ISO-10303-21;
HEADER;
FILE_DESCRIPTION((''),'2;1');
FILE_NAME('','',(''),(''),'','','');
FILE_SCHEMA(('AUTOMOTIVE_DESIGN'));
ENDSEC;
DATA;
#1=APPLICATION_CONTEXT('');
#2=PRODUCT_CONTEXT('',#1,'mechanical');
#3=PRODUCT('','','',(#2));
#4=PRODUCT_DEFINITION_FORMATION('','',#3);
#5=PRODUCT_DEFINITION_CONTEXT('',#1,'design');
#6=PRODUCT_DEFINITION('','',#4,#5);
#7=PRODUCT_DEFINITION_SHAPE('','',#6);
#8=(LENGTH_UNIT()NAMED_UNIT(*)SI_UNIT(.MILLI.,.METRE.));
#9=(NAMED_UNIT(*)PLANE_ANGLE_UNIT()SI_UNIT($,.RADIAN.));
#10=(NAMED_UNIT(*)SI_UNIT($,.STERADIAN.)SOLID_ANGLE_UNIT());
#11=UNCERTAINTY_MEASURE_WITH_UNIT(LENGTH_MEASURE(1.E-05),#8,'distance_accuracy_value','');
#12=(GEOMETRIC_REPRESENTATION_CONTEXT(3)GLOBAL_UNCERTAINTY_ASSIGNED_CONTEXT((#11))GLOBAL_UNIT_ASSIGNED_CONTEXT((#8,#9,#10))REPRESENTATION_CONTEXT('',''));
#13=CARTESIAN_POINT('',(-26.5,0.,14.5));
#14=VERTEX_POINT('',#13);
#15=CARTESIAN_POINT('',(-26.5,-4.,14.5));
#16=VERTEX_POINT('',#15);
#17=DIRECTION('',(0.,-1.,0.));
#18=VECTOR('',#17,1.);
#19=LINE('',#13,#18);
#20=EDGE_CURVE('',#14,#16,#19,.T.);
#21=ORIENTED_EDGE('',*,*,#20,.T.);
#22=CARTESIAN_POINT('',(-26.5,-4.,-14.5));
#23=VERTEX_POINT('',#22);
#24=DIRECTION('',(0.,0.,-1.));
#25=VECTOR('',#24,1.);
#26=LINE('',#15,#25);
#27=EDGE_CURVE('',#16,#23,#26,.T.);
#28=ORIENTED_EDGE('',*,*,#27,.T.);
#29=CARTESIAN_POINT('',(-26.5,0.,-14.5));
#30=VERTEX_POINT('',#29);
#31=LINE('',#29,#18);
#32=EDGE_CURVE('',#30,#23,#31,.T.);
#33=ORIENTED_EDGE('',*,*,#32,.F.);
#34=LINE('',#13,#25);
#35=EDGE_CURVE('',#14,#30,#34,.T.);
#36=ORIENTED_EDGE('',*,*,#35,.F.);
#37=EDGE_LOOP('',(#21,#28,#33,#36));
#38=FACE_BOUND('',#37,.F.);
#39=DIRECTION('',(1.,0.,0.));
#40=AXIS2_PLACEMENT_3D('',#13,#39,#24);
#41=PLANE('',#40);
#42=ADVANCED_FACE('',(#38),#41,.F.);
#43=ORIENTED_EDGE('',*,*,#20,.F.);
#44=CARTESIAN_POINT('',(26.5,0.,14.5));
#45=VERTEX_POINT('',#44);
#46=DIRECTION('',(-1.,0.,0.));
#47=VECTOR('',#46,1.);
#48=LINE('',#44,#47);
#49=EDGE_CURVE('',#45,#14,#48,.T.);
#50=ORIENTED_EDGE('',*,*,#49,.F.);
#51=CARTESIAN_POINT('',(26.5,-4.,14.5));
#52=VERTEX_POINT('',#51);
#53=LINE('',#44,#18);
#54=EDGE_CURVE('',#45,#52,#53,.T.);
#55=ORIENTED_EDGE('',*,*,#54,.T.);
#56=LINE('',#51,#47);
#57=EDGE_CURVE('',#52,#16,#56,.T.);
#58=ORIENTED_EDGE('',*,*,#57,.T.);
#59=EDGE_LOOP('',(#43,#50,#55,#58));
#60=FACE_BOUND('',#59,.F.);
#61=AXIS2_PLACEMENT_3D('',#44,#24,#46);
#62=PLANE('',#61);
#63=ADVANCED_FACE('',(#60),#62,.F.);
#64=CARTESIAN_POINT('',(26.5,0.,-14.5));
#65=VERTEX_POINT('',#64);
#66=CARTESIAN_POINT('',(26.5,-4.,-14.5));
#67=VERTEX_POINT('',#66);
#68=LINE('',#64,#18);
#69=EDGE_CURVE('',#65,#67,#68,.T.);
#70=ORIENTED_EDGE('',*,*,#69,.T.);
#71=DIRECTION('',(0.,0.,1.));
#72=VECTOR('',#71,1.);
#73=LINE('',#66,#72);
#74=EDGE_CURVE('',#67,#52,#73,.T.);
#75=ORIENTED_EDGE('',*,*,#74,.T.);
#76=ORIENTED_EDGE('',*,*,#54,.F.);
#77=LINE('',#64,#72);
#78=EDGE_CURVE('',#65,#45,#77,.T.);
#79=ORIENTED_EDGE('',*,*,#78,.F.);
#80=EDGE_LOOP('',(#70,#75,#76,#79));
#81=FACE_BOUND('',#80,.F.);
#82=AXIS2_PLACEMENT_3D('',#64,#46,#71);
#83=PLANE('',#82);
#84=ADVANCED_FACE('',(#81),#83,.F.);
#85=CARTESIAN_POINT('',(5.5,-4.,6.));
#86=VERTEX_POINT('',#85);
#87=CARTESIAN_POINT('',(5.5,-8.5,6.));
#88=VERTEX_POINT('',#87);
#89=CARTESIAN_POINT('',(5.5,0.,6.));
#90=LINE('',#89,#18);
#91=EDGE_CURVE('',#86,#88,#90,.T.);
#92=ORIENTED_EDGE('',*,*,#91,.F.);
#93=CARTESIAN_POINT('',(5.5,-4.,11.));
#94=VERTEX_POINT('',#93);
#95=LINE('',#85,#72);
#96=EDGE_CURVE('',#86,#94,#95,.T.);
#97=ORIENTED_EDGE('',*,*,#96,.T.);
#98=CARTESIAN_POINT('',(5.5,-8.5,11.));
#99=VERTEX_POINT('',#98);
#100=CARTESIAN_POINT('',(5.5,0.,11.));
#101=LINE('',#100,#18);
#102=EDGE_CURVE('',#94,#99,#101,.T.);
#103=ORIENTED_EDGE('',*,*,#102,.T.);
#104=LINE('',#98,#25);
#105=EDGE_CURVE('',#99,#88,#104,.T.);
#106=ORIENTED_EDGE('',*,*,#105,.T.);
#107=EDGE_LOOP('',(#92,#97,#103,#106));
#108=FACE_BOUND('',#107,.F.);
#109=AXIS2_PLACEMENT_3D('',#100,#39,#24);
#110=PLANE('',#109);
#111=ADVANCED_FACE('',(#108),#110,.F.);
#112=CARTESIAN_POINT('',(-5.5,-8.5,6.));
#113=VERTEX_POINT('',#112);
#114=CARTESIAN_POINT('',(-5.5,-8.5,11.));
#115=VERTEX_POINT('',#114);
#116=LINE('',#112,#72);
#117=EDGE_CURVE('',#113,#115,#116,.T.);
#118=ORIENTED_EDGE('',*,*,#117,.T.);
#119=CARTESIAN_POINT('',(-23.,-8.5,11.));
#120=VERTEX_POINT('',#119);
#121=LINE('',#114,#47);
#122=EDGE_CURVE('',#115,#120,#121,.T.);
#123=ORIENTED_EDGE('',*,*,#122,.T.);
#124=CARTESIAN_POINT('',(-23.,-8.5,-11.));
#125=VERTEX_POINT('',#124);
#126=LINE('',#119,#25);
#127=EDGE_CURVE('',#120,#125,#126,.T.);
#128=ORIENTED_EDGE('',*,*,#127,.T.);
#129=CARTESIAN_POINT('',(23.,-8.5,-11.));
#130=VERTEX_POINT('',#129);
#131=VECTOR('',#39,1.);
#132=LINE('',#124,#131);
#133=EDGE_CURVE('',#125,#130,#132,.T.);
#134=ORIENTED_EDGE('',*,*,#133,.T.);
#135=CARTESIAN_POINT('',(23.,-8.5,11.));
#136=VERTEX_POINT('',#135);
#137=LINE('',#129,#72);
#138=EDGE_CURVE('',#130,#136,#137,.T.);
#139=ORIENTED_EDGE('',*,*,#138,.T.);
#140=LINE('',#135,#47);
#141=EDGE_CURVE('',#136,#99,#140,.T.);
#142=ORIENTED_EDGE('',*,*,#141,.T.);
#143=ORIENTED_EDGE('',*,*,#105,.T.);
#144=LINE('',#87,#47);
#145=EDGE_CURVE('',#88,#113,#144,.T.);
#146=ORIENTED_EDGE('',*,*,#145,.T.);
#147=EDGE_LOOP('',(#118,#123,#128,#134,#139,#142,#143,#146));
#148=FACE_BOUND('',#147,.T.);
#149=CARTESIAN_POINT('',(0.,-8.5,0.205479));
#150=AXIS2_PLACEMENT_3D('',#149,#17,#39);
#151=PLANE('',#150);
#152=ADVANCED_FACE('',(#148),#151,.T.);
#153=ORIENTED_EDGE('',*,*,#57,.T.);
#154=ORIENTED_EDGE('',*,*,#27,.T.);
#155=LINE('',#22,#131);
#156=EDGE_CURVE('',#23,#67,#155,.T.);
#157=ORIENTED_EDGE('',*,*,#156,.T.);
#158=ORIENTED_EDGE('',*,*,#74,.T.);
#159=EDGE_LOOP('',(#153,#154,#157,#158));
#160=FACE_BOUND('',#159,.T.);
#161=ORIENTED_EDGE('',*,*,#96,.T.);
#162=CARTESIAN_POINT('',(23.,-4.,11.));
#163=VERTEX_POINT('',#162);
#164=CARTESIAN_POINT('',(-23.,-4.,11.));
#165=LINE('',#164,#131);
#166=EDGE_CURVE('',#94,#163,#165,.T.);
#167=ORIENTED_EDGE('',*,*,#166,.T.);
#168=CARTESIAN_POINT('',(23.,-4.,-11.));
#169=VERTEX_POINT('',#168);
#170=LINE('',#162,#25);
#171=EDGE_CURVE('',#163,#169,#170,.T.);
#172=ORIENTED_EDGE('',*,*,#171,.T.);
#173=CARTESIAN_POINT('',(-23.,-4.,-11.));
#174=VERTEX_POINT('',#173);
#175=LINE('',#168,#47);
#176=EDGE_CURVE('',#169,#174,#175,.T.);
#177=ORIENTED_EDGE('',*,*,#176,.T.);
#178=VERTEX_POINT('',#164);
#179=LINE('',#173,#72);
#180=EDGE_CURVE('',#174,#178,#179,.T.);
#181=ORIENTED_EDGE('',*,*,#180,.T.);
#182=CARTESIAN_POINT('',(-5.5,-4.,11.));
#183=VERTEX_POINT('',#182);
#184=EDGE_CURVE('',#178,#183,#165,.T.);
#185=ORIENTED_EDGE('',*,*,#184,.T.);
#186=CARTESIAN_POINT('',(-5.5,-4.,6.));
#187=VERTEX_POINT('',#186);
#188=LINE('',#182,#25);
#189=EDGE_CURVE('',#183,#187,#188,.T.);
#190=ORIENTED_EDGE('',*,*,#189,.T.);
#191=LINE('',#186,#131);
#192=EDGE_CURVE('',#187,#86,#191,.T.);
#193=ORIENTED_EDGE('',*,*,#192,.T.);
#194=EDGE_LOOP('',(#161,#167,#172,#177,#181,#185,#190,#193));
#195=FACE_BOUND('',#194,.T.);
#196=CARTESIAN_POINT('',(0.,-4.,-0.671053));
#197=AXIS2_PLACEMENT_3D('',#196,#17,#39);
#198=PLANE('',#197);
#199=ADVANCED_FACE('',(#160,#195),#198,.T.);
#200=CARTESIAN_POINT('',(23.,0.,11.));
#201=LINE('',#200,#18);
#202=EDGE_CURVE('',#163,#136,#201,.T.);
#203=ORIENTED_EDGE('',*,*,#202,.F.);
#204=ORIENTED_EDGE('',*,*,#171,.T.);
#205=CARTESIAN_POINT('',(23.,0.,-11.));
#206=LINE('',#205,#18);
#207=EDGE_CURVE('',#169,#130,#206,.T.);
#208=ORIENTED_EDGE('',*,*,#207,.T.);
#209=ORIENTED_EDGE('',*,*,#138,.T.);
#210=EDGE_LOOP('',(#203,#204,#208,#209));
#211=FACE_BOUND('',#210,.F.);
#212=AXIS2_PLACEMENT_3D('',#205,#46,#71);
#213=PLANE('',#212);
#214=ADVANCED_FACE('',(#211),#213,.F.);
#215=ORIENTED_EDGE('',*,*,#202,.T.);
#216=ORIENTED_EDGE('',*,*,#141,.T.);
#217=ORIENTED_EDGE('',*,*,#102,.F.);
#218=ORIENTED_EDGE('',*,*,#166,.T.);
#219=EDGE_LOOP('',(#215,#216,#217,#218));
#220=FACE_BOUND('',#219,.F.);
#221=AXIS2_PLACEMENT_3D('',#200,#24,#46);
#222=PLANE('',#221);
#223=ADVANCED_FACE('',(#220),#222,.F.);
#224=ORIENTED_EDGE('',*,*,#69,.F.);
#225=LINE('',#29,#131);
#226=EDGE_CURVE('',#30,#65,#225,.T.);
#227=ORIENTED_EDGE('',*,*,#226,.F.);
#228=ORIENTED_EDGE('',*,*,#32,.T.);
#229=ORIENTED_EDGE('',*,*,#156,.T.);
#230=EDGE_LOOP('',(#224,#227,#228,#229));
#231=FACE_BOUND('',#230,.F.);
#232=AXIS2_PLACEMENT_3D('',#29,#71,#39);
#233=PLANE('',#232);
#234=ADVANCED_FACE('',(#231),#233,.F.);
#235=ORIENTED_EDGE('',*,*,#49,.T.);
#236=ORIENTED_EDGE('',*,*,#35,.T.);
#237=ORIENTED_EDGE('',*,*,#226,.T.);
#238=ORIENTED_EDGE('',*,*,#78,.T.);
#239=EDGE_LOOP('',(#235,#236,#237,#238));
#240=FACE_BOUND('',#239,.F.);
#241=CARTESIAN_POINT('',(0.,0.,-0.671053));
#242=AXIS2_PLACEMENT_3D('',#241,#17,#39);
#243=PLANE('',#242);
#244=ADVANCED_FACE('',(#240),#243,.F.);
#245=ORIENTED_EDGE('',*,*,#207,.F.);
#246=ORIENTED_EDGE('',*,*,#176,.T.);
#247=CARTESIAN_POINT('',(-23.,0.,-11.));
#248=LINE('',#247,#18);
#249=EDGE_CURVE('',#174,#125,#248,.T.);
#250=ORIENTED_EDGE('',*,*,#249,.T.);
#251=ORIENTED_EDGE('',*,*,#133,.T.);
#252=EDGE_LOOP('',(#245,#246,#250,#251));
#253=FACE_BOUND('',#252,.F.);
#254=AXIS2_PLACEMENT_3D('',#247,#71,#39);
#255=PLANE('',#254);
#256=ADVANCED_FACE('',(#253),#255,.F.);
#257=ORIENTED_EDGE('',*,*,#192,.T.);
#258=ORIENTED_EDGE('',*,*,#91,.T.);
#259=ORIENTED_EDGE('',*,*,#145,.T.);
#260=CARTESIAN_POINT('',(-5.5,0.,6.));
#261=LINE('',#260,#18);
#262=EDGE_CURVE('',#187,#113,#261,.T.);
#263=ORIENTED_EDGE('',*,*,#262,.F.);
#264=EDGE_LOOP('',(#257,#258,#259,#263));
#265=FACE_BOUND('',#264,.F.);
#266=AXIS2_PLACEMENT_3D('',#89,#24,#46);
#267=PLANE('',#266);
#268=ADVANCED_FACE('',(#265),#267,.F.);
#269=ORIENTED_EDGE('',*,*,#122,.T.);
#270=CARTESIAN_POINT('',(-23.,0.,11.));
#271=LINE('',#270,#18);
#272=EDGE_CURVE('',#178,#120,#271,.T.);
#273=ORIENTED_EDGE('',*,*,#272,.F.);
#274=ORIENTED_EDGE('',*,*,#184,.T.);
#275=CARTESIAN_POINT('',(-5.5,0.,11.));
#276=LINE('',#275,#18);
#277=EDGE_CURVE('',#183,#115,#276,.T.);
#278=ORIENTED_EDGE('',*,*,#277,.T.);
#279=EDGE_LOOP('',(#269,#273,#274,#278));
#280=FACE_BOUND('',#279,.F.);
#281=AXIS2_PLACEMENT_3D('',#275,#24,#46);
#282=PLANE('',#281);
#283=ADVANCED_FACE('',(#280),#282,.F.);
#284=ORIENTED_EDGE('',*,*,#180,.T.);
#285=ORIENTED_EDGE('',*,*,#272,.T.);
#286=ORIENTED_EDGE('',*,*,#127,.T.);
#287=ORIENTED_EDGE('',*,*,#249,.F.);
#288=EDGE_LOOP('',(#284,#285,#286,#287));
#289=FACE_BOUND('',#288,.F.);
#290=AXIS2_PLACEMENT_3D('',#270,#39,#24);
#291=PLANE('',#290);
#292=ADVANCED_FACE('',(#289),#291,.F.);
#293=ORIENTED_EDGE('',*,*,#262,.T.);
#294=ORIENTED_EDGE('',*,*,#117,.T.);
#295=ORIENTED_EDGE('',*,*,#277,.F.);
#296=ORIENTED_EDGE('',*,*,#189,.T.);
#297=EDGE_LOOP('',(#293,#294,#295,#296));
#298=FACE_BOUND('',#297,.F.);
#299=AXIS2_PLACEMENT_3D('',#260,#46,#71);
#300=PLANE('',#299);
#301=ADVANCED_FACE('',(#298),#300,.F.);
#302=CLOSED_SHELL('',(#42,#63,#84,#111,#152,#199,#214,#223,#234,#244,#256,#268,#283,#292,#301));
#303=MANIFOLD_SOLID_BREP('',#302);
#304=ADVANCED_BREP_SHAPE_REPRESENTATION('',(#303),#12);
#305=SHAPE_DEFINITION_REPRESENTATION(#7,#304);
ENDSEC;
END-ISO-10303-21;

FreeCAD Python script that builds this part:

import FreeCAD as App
import Part
import Sketcher

doc = App.newDocument("Part")
body = doc.addObject("PartDesign::Body", "Body")

# Sketch on XZ plane
sketch1 = body.newObject("Sketcher::SketchObject", "Sketch")
sketch1.AttachmentSupport = (doc.getObject("XZ_Plane"), [""])
sketch1.MapMode = "FlatFace"
sketch1.addGeometry([
    Part.LineSegment(App.Vector(-26, 14, 0), App.Vector(-26, -14, 0)),  # 0
    Part.LineSegment(App.Vector(-26, -14, 0), App.Vector(26, -14, 0)),  # 1
    Part.LineSegment(App.Vector(26, -14, 0), App.Vector(26, 14, 0)),  # 2
    Part.LineSegment(App.Vector(26, 14, 0), App.Vector(-26, 14, 0)),  # 3
    Part.LineSegment(App.Vector(23, 11, 0), App.Vector(23, -11, 0)),  # 4
    Part.LineSegment(App.Vector(23, -11, 0), App.Vector(-23, -11, 0)),  # 5
    Part.LineSegment(App.Vector(-23, -11, 0), App.Vector(-23, 11, 0)),  # 6
    Part.LineSegment(App.Vector(-23, 11, 0), App.Vector(-6, 11, 0)),  # 7
    Part.LineSegment(App.Vector(-6, 11, 0), App.Vector(-6, 6, 0)),  # 8
    Part.LineSegment(App.Vector(-6, 6, 0), App.Vector(6, 6, 0)),  # 9
    Part.LineSegment(App.Vector(6, 6, 0), App.Vector(6, 11, 0)),  # 10
    Part.LineSegment(App.Vector(6, 11, 0), App.Vector(23, 11, 0)),  # 11
], False)
sketch1.addConstraint([
    Sketcher.Constraint("Coincident", 0, 2, 1, 1),
    Sketcher.Constraint("Coincident", 1, 2, 2, 1),
    Sketcher.Constraint("Coincident", 2, 2, 3, 1),
    Sketcher.Constraint("Coincident", 3, 2, 0, 1),
    Sketcher.Constraint("Coincident", 4, 2, 5, 1),
    Sketcher.Constraint("Coincident", 5, 2, 6, 1),
    Sketcher.Constraint("Coincident", 6, 2, 7, 1),
    Sketcher.Constraint("Coincident", 7, 2, 8, 1),
    Sketcher.Constraint("Coincident", 8, 2, 9, 1),
    Sketcher.Constraint("Coincident", 9, 2, 10, 1),
    Sketcher.Constraint("Coincident", 10, 2, 11, 1),
    Sketcher.Constraint("Coincident", 11, 2, 4, 1),
    Sketcher.Constraint("Vertical", 0),
    Sketcher.Constraint("Horizontal", 1),
    Sketcher.Constraint("Vertical", 2),
    Sketcher.Constraint("Horizontal", 3),
    Sketcher.Constraint("Vertical", 4),
    Sketcher.Constraint("Horizontal", 5),
    Sketcher.Constraint("Vertical", 6),
    Sketcher.Constraint("Horizontal", 7),
    Sketcher.Constraint("Vertical", 8),
    Sketcher.Constraint("Horizontal", 9),
    Sketcher.Constraint("Vertical", 10),
    Sketcher.Constraint("Horizontal", 11),
    Sketcher.Constraint("Symmetric", 0, 2, 2, 2, -1, 1),
    Sketcher.Constraint("Symmetric", 4, 2, 6, 2, -1, 1),
    Sketcher.Constraint("Symmetric", 7, 2, 10, 2, -2),
    Sketcher.Constraint("DistanceX", 1, 1, 1, 2, 53.0),
    Sketcher.Constraint("DistanceX", 5, 2, 5, 1, 46.0),
    Sketcher.Constraint("DistanceX", 9, 1, 9, 2, 11.0),
    Sketcher.Constraint("DistanceY", 0, 2, 0, 1, 29.0),
    Sketcher.Constraint("DistanceY", 4, 2, 4, 1, 22.0),
    Sketcher.Constraint("DistanceY", 8, 2, 8, 1, 5.0),
])
pad1 = body.newObject("PartDesign::Pad", "Pad")
pad1.Profile = sketch1
pad1.Length = 4

# Sketch on XZ plane
sketch2 = body.newObject("Sketcher::SketchObject", "Sketch001")
sketch2.AttachmentSupport = (doc.getObject("XZ_Plane"), [""])
sketch2.MapMode = "FlatFace"
sketch2.addGeometry([
    Part.LineSegment(App.Vector(-6, 6, 0), App.Vector(-6, 11, 0)),  # 0
    Part.LineSegment(App.Vector(-6, 11, 0), App.Vector(-23, 11, 0)),  # 1
    Part.LineSegment(App.Vector(-23, 11, 0), App.Vector(-23, -11, 0)),  # 2
    Part.LineSegment(App.Vector(-23, -11, 0), App.Vector(23, -11, 0)),  # 3
    Part.LineSegment(App.Vector(23, -11, 0), App.Vector(23, 11, 0)),  # 4
    Part.LineSegment(App.Vector(23, 11, 0), App.Vector(6, 11, 0)),  # 5
    Part.LineSegment(App.Vector(6, 11, 0), App.Vector(6, 6, 0)),  # 6
    Part.LineSegment(App.Vector(6, 6, 0), App.Vector(-6, 6, 0)),  # 7
], False)
sketch2.addConstraint([
    Sketcher.Constraint("Coincident", 0, 2, 1, 1),
    Sketcher.Constraint("Coincident", 1, 2, 2, 1),
    Sketcher.Constraint("Coincident", 2, 2, 3, 1),
    Sketcher.Constraint("Coincident", 3, 2, 4, 1),
    Sketcher.Constraint("Coincident", 4, 2, 5, 1),
    Sketcher.Constraint("Coincident", 5, 2, 6, 1),
    Sketcher.Constraint("Coincident", 6, 2, 7, 1),
    Sketcher.Constraint("Coincident", 7, 2, 0, 1),
    Sketcher.Constraint("Vertical", 0),
    Sketcher.Constraint("Horizontal", 1),
    Sketcher.Constraint("Vertical", 2),
    Sketcher.Constraint("Horizontal", 3),
    Sketcher.Constraint("Vertical", 4),
    Sketcher.Constraint("Horizontal", 5),
    Sketcher.Constraint("Vertical", 6),
    Sketcher.Constraint("Horizontal", 7),
    Sketcher.Constraint("Symmetric", 1, 2, 3, 2, -1, 1),
    Sketcher.Constraint("Symmetric", 0, 2, 5, 2, -2),
    Sketcher.Constraint("DistanceX", 3, 1, 3, 2, 46.0),
    Sketcher.Constraint("DistanceX", 7, 2, 7, 1, 11.0),
    Sketcher.Constraint("DistanceY", 0, 1, 0, 2, 5.0),
    Sketcher.Constraint("DistanceY", 2, 2, 2, 1, 22.0),
])
pad2 = body.newObject("PartDesign::Pad", "Pad001")
pad2.Profile = sketch2
pad2.Length = 8.5

# Sketch on XZ plane
sketch3 = body.newObject("Sketcher::SketchObject", "Sketch002")
sketch3.AttachmentSupport = (doc.getObject("XZ_Plane"), [""])
sketch3.MapMode = "FlatFace"
sketch3.addGeometry([
    Part.LineSegment(App.Vector(-6, 14, 0), App.Vector(-6, 6, 0)),
    Part.LineSegment(App.Vector(-6, 6, 0), App.Vector(6, 6, 0)),
    Part.LineSegment(App.Vector(6, 6, 0), App.Vector(6, 14, 0)),
    Part.LineSegment(App.Vector(6, 14, 0), App.Vector(-6, 14, 0)),
], False)
sketch3.addConstraint([
    Sketcher.Constraint("Coincident", 0, 2, 1, 1),
    Sketcher.Constraint("Coincident", 1, 2, 2, 1),
    Sketcher.Constraint("Coincident", 2, 2, 3, 1),
    Sketcher.Constraint("Coincident", 3, 2, 0, 1),
    Sketcher.Constraint("Vertical", 0),
    Sketcher.Constraint("Horizontal", 1),
    Sketcher.Constraint("Vertical", 2),
    Sketcher.Constraint("Horizontal", 3),
    Sketcher.Constraint("DistanceX", 1, 1, 1, 2, 11.0),
    Sketcher.Constraint("DistanceY", 0, 2, 0, 1, 8.5),
    Sketcher.Constraint("DistanceY", -1, 1, 0, 2, 6.0),
    Sketcher.Constraint("DistanceX", 0, 2, -1, 1, 5.5),
])
pad3 = body.newObject("PartDesign::Pad", "Pad002")
pad3.Profile = sketch3
pad3.Length = 1

doc.recompute()
